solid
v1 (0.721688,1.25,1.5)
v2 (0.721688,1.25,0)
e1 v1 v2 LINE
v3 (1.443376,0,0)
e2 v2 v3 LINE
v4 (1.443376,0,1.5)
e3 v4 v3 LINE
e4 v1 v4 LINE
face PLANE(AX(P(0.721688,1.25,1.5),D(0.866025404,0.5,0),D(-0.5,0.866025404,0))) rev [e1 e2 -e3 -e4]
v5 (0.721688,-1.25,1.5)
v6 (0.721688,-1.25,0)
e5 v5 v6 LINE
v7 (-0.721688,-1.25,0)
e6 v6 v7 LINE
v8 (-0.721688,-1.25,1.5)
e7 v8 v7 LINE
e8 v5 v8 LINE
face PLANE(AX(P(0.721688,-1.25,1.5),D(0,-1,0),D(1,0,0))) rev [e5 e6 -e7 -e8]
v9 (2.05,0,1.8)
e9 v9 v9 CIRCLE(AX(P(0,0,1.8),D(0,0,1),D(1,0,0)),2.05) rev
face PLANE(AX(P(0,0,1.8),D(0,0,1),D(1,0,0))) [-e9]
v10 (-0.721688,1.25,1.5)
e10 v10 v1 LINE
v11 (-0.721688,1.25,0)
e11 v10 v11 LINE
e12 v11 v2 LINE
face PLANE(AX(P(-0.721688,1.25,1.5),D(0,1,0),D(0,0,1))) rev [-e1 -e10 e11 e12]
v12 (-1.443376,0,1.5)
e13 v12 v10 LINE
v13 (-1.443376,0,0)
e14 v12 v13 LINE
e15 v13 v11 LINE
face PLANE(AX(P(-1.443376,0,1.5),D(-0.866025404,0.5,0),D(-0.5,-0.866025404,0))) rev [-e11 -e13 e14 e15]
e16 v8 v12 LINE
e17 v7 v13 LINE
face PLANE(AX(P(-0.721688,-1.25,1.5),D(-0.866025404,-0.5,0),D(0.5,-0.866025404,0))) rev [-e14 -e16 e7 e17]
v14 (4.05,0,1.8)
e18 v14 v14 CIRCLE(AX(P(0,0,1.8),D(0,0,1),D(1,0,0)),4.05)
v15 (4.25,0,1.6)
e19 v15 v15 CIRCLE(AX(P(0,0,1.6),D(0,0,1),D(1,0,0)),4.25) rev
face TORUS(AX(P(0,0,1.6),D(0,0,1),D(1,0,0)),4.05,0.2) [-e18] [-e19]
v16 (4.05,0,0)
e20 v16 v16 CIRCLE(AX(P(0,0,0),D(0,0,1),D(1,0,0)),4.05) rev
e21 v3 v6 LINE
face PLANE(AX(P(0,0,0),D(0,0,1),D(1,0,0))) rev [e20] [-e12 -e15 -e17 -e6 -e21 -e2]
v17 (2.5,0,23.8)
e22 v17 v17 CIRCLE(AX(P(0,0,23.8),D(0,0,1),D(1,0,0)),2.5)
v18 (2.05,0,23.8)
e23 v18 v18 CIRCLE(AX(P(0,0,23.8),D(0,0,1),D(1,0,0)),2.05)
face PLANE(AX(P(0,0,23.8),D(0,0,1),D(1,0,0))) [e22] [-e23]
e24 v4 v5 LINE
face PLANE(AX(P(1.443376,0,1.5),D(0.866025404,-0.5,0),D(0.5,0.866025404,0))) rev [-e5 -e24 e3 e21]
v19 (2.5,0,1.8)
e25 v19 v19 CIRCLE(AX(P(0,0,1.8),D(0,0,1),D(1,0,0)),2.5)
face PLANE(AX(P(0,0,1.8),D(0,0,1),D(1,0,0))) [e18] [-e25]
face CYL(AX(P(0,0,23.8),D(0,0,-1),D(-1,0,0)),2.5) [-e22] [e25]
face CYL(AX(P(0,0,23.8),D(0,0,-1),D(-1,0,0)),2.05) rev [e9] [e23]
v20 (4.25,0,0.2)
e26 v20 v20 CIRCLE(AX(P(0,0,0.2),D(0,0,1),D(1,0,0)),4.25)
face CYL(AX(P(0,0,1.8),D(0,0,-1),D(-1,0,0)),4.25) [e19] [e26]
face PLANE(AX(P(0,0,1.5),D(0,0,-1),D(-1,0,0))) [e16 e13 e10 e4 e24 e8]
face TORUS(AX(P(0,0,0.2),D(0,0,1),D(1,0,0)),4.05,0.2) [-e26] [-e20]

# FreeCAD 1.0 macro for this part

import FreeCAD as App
import Part
import Sketcher
Q = App.Units.Quantity


def edges_at(feature, points):
    """Names of the edges that pass closest to the given points."""
    edges = feature.Shape.Edges
    near = lambda p: min(range(len(edges)), key=lambda i: edges[i].distToShape(Part.Vertex(*p))[0])
    return sorted({f"Edge{near(p) + 1}" for p in points})

doc = App.newDocument("Part")
body = doc.addObject("PartDesign::Body", "Body")

# Sketch on XY plane
sketch1 = body.newObject("Sketcher::SketchObject", "Sketch")
sketch1.AttachmentSupport = (doc.getObject("XY_Plane"), [""])
sketch1.MapMode = "FlatFace"
sketch1.addGeometry(Part.Circle(App.Vector(0, 0, 0), App.Vector(0, 0, 1), 4.2), False)
sketch1.addConstraint(Sketcher.Constraint("Coincident", 0, 3, -1, 1))
sketch1.addConstraint(Sketcher.Constraint("Diameter", 0, 8.5))
pad1 = body.newObject("PartDesign::Pad", "Pad")
pad1.Profile = sketch1
pad1.Length = 1.8

# Sketch on XY plane
sketch2 = body.newObject("Sketcher::SketchObject", "Sketch001")
sketch2.AttachmentSupport = (doc.getObject("XY_Plane"), [""])
sketch2.MapMode = "FlatFace"
sketch2.AttachmentOffset = App.Placement(App.Vector(0, 0, 1.8), App.Rotation())
sketch2.addGeometry(Part.Circle(App.Vector(0, 0, 0), App.Vector(0, 0, 1), 2.5), False)
sketch2.addGeometry(Part.Circle(App.Vector(0, 0, 0), App.Vector(0, 0, 1), 2), False)
sketch2.addConstraint(Sketcher.Constraint("Coincident", 0, 3, -1, 1))
sketch2.addConstraint(Sketcher.Constraint("Coincident", 1, 3, -1, 1))
sketch2.addConstraint(Sketcher.Constraint("Diameter", 0, 5.0))
sketch2.addConstraint(Sketcher.Constraint("Diameter", 1, 4.1))
pad2 = body.newObject("PartDesign::Pad", "Pad001")
pad2.Profile = sketch2
pad2.Length = 22
doc.recompute()

fillet = body.newObject("PartDesign::Fillet", "Fillet")
fillet.Base = (pad2, edges_at(pad2, [(-4.25, 0, 0), (-4.25, 0, 1.8)]))
fillet.Radius = 0.2

# Sketch on XY plane
sketch3 = body.newObject("Sketcher::SketchObject", "Sketch002")
sketch3.AttachmentSupport = (doc.getObject("XY_Plane"), [""])
sketch3.MapMode = "FlatFace"
sketch3.addGeometry(Part.LineSegment(App.Vector(-1.4, 0, 0), App.Vector(-0.7, 1.2, 0)), False)
sketch3.addGeometry(Part.LineSegment(App.Vector(-0.7, 1.2, 0), App.Vector(0.7, 1.2, 0)), False)
sketch3.addGeometry(Part.LineSegment(App.Vector(0.7, 1.2, 0), App.Vector(1.4, 0, 0)), False)
sketch3.addGeometry(Part.LineSegment(App.Vector(1.4, 0, 0), App.Vector(0.7, -1.2, 0)), False)
sketch3.addGeometry(Part.LineSegment(App.Vector(0.7, -1.2, 0), App.Vector(-0.7, -1.2, 0)), False)
sketch3.addGeometry(Part.LineSegment(App.Vector(-0.7, -1.2, 0), App.Vector(-1.4, 0, 0)), False)
sketch3.addConstraint(Sketcher.Constraint("Coincident", 0, 2, 1, 1))
sketch3.addConstraint(Sketcher.Constraint("Coincident", 1, 2, 2, 1))
sketch3.addConstraint(Sketcher.Constraint("Coincident", 2, 2, 3, 1))
sketch3.addConstraint(Sketcher.Constraint("Coincident", 3, 2, 4, 1))
sketch3.addConstraint(Sketcher.Constraint("Coincident", 4, 2, 5, 1))
sketch3.addConstraint(Sketcher.Constraint("Coincident", 5, 2, 0, 1))
sketch3.addConstraint(Sketcher.Constraint("Horizontal", 1))
sketch3.addConstraint(Sketcher.Constraint("Horizontal", 4))
sketch3.addConstraint(Sketcher.Constraint("Symmetric", 0, 2, 3, 2, -1, 1))
sketch3.addConstraint(Sketcher.Constraint("Symmetric", 2, 2, 5, 2, -1, 1))
sketch3.addConstraint(Sketcher.Constraint("PointOnObject", 2, 2, -1))
sketch3.addConstraint(Sketcher.Constraint("Parallel", 2, 5))
sketch3.addConstraint(Sketcher.Constraint("Vertical", 1, 2, 3, 2))
sketch3.addConstraint(Sketcher.Constraint("Angle", 0, Q("60 deg")))
sketch3.addConstraint(Sketcher.Constraint("DistanceY", 3, 2, 1, 2, 2.5))
sketch3.addConstraint(Sketcher.Constraint("DistanceX", 1, 1, 1, 2, 1.443376))
pocket1 = body.newObject("PartDesign::Pocket", "Pocket")
pocket1.Profile = sketch3
pocket1.Length = 1.5
pocket1.Reversed = True

doc.recompute()
